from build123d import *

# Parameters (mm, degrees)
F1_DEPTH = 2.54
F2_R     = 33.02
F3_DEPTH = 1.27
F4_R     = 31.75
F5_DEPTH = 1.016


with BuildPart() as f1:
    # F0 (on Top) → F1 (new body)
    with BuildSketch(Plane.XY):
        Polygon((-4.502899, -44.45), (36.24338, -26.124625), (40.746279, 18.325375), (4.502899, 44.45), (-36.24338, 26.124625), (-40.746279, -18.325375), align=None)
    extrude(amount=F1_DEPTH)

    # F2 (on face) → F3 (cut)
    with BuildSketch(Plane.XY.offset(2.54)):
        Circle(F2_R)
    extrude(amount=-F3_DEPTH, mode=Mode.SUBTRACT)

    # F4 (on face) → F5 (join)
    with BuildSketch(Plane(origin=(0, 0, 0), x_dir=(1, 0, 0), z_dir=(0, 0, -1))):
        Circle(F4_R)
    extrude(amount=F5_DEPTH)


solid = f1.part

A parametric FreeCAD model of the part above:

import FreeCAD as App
import Part
import Sketcher

V = App.Vector
Q = App.Units.Quantity

doc = App.newDocument("Part")
params = doc.addObject("Spreadsheet::Sheet", "Params")
for row, (alias, value) in enumerate([
    ("pad1_length", "0.1 in"),
    ("sketch2_diameter", "2.6 in"),
    ("pocket1_length", "0.05 in"),
    ("sketch3_diameter", "2.5 in"),
    ("pad2_length", "0.04 in"),
], start=1):
    params.set(f"A{row}", alias)
    params.set(f"B{row}", "=" + value)
    params.setAlias(f"B{row}", alias)

body = doc.addObject("PartDesign::Body", "Body")

# Sketch on XY plane
sketch1 = body.newObject("Sketcher::SketchObject", "Sketch")
sketch1.AttachmentSupport = (doc.getObject("XY_Plane"), [""])
sketch1.MapMode = "FlatFace"
sketch1.addGeometry([
    Part.LineSegment(V(-4.502899, -44.45, 0), V(36.24338, -26.124625, 0)),  # 0
    Part.LineSegment(V(36.24338, -26.124625, 0), V(40.746279, 18.325375, 0)),  # 1
    Part.LineSegment(V(40.746279, 18.325375, 0), V(4.502899, 44.45, 0)),  # 2
    Part.LineSegment(V(4.502899, 44.45, 0), V(-36.24338, 26.124625, 0)),  # 3
    Part.LineSegment(V(-36.24338, 26.124625, 0), V(-40.746279, -18.325375, 0)),  # 4
    Part.LineSegment(V(-40.746279, -18.325375, 0), V(-4.502899, -44.45, 0)),  # 5
], False)
sketch1.addConstraint([
    Sketcher.Constraint("Coincident", 0, 2, 1, 1),
    Sketcher.Constraint("Coincident", 1, 2, 2, 1),
    Sketcher.Constraint("Coincident", 2, 2, 3, 1),
    Sketcher.Constraint("Coincident", 3, 2, 4, 1),
    Sketcher.Constraint("Coincident", 4, 2, 5, 1),
    Sketcher.Constraint("Coincident", 5, 2, 0, 1),
    Sketcher.Constraint("Symmetric", 0, 2, 3, 2, -1, 1),
    Sketcher.Constraint("Symmetric", 1, 2, 4, 2, -1, 1),
    Sketcher.Constraint("Symmetric", 2, 2, 5, 2, -1, 1),
    Sketcher.Constraint("Equal", 0, 1),
    Sketcher.Constraint("Equal", 1, 2),
    Sketcher.Constraint("DistanceY", 5, 2, 2, 2, Q("3.5 in")),
    Sketcher.Constraint("DistanceY", 0, 2, 1, 2, Q("1.75 in")),
    Sketcher.Constraint("DistanceX", -1, 1, 2, 2, 4.502899),
    Sketcher.Constraint("DistanceX", 0, 2, 1, 2, 4.502899),
])
pad1 = body.newObject("PartDesign::Pad", "Pad")
pad1.Profile = sketch1
pad1.setExpression("Length", "Params.pad1_length")

# Sketch on XY plane
sketch2 = body.newObject("Sketcher::SketchObject", "Sketch001")
sketch2.AttachmentSupport = (doc.getObject("XY_Plane"), [""])
sketch2.MapMode = "FlatFace"
sketch2.AttachmentOffset = App.Placement(V(0, 0, 0.1 * 25.4), App.Rotation())
sketch2.addGeometry(Part.Circle(V(0, 0, 0), V(0, 0, 1), 33.02), False)
sketch2.addConstraint([
    Sketcher.Constraint("Coincident", 0, 3, -1, 1),
    Sketcher.Constraint("Diameter", 0, Q("2.6 in")),
])
sketch2.setExpression("Constraints[1]", "Params.sketch2_diameter")
pocket1 = body.newObject("PartDesign::Pocket", "Pocket")
pocket1.Profile = sketch2
pocket1.setExpression("Length", "Params.pocket1_length")

# Sketch on XY plane
sketch3 = body.newObject("Sketcher::SketchObject", "Sketch002")
sketch3.AttachmentSupport = (doc.getObject("XY_Plane"), [""])
sketch3.MapMode = "FlatFace"
sketch3.addGeometry(Part.Circle(V(0, 0, 0), V(0, 0, 1), 31.75), False)
sketch3.addConstraint([
    Sketcher.Constraint("Coincident", 0, 3, -1, 1),
    Sketcher.Constraint("Diameter", 0, Q("2.5 in")),
])
sketch3.setExpression("Constraints[1]", "Params.sketch3_diameter")
pad2 = body.newObject("PartDesign::Pad", "Pad001")
pad2.Profile = sketch3
pad2.setExpression("Length", "Params.pad2_length")
pad2.Reversed = True

doc.recompute()
